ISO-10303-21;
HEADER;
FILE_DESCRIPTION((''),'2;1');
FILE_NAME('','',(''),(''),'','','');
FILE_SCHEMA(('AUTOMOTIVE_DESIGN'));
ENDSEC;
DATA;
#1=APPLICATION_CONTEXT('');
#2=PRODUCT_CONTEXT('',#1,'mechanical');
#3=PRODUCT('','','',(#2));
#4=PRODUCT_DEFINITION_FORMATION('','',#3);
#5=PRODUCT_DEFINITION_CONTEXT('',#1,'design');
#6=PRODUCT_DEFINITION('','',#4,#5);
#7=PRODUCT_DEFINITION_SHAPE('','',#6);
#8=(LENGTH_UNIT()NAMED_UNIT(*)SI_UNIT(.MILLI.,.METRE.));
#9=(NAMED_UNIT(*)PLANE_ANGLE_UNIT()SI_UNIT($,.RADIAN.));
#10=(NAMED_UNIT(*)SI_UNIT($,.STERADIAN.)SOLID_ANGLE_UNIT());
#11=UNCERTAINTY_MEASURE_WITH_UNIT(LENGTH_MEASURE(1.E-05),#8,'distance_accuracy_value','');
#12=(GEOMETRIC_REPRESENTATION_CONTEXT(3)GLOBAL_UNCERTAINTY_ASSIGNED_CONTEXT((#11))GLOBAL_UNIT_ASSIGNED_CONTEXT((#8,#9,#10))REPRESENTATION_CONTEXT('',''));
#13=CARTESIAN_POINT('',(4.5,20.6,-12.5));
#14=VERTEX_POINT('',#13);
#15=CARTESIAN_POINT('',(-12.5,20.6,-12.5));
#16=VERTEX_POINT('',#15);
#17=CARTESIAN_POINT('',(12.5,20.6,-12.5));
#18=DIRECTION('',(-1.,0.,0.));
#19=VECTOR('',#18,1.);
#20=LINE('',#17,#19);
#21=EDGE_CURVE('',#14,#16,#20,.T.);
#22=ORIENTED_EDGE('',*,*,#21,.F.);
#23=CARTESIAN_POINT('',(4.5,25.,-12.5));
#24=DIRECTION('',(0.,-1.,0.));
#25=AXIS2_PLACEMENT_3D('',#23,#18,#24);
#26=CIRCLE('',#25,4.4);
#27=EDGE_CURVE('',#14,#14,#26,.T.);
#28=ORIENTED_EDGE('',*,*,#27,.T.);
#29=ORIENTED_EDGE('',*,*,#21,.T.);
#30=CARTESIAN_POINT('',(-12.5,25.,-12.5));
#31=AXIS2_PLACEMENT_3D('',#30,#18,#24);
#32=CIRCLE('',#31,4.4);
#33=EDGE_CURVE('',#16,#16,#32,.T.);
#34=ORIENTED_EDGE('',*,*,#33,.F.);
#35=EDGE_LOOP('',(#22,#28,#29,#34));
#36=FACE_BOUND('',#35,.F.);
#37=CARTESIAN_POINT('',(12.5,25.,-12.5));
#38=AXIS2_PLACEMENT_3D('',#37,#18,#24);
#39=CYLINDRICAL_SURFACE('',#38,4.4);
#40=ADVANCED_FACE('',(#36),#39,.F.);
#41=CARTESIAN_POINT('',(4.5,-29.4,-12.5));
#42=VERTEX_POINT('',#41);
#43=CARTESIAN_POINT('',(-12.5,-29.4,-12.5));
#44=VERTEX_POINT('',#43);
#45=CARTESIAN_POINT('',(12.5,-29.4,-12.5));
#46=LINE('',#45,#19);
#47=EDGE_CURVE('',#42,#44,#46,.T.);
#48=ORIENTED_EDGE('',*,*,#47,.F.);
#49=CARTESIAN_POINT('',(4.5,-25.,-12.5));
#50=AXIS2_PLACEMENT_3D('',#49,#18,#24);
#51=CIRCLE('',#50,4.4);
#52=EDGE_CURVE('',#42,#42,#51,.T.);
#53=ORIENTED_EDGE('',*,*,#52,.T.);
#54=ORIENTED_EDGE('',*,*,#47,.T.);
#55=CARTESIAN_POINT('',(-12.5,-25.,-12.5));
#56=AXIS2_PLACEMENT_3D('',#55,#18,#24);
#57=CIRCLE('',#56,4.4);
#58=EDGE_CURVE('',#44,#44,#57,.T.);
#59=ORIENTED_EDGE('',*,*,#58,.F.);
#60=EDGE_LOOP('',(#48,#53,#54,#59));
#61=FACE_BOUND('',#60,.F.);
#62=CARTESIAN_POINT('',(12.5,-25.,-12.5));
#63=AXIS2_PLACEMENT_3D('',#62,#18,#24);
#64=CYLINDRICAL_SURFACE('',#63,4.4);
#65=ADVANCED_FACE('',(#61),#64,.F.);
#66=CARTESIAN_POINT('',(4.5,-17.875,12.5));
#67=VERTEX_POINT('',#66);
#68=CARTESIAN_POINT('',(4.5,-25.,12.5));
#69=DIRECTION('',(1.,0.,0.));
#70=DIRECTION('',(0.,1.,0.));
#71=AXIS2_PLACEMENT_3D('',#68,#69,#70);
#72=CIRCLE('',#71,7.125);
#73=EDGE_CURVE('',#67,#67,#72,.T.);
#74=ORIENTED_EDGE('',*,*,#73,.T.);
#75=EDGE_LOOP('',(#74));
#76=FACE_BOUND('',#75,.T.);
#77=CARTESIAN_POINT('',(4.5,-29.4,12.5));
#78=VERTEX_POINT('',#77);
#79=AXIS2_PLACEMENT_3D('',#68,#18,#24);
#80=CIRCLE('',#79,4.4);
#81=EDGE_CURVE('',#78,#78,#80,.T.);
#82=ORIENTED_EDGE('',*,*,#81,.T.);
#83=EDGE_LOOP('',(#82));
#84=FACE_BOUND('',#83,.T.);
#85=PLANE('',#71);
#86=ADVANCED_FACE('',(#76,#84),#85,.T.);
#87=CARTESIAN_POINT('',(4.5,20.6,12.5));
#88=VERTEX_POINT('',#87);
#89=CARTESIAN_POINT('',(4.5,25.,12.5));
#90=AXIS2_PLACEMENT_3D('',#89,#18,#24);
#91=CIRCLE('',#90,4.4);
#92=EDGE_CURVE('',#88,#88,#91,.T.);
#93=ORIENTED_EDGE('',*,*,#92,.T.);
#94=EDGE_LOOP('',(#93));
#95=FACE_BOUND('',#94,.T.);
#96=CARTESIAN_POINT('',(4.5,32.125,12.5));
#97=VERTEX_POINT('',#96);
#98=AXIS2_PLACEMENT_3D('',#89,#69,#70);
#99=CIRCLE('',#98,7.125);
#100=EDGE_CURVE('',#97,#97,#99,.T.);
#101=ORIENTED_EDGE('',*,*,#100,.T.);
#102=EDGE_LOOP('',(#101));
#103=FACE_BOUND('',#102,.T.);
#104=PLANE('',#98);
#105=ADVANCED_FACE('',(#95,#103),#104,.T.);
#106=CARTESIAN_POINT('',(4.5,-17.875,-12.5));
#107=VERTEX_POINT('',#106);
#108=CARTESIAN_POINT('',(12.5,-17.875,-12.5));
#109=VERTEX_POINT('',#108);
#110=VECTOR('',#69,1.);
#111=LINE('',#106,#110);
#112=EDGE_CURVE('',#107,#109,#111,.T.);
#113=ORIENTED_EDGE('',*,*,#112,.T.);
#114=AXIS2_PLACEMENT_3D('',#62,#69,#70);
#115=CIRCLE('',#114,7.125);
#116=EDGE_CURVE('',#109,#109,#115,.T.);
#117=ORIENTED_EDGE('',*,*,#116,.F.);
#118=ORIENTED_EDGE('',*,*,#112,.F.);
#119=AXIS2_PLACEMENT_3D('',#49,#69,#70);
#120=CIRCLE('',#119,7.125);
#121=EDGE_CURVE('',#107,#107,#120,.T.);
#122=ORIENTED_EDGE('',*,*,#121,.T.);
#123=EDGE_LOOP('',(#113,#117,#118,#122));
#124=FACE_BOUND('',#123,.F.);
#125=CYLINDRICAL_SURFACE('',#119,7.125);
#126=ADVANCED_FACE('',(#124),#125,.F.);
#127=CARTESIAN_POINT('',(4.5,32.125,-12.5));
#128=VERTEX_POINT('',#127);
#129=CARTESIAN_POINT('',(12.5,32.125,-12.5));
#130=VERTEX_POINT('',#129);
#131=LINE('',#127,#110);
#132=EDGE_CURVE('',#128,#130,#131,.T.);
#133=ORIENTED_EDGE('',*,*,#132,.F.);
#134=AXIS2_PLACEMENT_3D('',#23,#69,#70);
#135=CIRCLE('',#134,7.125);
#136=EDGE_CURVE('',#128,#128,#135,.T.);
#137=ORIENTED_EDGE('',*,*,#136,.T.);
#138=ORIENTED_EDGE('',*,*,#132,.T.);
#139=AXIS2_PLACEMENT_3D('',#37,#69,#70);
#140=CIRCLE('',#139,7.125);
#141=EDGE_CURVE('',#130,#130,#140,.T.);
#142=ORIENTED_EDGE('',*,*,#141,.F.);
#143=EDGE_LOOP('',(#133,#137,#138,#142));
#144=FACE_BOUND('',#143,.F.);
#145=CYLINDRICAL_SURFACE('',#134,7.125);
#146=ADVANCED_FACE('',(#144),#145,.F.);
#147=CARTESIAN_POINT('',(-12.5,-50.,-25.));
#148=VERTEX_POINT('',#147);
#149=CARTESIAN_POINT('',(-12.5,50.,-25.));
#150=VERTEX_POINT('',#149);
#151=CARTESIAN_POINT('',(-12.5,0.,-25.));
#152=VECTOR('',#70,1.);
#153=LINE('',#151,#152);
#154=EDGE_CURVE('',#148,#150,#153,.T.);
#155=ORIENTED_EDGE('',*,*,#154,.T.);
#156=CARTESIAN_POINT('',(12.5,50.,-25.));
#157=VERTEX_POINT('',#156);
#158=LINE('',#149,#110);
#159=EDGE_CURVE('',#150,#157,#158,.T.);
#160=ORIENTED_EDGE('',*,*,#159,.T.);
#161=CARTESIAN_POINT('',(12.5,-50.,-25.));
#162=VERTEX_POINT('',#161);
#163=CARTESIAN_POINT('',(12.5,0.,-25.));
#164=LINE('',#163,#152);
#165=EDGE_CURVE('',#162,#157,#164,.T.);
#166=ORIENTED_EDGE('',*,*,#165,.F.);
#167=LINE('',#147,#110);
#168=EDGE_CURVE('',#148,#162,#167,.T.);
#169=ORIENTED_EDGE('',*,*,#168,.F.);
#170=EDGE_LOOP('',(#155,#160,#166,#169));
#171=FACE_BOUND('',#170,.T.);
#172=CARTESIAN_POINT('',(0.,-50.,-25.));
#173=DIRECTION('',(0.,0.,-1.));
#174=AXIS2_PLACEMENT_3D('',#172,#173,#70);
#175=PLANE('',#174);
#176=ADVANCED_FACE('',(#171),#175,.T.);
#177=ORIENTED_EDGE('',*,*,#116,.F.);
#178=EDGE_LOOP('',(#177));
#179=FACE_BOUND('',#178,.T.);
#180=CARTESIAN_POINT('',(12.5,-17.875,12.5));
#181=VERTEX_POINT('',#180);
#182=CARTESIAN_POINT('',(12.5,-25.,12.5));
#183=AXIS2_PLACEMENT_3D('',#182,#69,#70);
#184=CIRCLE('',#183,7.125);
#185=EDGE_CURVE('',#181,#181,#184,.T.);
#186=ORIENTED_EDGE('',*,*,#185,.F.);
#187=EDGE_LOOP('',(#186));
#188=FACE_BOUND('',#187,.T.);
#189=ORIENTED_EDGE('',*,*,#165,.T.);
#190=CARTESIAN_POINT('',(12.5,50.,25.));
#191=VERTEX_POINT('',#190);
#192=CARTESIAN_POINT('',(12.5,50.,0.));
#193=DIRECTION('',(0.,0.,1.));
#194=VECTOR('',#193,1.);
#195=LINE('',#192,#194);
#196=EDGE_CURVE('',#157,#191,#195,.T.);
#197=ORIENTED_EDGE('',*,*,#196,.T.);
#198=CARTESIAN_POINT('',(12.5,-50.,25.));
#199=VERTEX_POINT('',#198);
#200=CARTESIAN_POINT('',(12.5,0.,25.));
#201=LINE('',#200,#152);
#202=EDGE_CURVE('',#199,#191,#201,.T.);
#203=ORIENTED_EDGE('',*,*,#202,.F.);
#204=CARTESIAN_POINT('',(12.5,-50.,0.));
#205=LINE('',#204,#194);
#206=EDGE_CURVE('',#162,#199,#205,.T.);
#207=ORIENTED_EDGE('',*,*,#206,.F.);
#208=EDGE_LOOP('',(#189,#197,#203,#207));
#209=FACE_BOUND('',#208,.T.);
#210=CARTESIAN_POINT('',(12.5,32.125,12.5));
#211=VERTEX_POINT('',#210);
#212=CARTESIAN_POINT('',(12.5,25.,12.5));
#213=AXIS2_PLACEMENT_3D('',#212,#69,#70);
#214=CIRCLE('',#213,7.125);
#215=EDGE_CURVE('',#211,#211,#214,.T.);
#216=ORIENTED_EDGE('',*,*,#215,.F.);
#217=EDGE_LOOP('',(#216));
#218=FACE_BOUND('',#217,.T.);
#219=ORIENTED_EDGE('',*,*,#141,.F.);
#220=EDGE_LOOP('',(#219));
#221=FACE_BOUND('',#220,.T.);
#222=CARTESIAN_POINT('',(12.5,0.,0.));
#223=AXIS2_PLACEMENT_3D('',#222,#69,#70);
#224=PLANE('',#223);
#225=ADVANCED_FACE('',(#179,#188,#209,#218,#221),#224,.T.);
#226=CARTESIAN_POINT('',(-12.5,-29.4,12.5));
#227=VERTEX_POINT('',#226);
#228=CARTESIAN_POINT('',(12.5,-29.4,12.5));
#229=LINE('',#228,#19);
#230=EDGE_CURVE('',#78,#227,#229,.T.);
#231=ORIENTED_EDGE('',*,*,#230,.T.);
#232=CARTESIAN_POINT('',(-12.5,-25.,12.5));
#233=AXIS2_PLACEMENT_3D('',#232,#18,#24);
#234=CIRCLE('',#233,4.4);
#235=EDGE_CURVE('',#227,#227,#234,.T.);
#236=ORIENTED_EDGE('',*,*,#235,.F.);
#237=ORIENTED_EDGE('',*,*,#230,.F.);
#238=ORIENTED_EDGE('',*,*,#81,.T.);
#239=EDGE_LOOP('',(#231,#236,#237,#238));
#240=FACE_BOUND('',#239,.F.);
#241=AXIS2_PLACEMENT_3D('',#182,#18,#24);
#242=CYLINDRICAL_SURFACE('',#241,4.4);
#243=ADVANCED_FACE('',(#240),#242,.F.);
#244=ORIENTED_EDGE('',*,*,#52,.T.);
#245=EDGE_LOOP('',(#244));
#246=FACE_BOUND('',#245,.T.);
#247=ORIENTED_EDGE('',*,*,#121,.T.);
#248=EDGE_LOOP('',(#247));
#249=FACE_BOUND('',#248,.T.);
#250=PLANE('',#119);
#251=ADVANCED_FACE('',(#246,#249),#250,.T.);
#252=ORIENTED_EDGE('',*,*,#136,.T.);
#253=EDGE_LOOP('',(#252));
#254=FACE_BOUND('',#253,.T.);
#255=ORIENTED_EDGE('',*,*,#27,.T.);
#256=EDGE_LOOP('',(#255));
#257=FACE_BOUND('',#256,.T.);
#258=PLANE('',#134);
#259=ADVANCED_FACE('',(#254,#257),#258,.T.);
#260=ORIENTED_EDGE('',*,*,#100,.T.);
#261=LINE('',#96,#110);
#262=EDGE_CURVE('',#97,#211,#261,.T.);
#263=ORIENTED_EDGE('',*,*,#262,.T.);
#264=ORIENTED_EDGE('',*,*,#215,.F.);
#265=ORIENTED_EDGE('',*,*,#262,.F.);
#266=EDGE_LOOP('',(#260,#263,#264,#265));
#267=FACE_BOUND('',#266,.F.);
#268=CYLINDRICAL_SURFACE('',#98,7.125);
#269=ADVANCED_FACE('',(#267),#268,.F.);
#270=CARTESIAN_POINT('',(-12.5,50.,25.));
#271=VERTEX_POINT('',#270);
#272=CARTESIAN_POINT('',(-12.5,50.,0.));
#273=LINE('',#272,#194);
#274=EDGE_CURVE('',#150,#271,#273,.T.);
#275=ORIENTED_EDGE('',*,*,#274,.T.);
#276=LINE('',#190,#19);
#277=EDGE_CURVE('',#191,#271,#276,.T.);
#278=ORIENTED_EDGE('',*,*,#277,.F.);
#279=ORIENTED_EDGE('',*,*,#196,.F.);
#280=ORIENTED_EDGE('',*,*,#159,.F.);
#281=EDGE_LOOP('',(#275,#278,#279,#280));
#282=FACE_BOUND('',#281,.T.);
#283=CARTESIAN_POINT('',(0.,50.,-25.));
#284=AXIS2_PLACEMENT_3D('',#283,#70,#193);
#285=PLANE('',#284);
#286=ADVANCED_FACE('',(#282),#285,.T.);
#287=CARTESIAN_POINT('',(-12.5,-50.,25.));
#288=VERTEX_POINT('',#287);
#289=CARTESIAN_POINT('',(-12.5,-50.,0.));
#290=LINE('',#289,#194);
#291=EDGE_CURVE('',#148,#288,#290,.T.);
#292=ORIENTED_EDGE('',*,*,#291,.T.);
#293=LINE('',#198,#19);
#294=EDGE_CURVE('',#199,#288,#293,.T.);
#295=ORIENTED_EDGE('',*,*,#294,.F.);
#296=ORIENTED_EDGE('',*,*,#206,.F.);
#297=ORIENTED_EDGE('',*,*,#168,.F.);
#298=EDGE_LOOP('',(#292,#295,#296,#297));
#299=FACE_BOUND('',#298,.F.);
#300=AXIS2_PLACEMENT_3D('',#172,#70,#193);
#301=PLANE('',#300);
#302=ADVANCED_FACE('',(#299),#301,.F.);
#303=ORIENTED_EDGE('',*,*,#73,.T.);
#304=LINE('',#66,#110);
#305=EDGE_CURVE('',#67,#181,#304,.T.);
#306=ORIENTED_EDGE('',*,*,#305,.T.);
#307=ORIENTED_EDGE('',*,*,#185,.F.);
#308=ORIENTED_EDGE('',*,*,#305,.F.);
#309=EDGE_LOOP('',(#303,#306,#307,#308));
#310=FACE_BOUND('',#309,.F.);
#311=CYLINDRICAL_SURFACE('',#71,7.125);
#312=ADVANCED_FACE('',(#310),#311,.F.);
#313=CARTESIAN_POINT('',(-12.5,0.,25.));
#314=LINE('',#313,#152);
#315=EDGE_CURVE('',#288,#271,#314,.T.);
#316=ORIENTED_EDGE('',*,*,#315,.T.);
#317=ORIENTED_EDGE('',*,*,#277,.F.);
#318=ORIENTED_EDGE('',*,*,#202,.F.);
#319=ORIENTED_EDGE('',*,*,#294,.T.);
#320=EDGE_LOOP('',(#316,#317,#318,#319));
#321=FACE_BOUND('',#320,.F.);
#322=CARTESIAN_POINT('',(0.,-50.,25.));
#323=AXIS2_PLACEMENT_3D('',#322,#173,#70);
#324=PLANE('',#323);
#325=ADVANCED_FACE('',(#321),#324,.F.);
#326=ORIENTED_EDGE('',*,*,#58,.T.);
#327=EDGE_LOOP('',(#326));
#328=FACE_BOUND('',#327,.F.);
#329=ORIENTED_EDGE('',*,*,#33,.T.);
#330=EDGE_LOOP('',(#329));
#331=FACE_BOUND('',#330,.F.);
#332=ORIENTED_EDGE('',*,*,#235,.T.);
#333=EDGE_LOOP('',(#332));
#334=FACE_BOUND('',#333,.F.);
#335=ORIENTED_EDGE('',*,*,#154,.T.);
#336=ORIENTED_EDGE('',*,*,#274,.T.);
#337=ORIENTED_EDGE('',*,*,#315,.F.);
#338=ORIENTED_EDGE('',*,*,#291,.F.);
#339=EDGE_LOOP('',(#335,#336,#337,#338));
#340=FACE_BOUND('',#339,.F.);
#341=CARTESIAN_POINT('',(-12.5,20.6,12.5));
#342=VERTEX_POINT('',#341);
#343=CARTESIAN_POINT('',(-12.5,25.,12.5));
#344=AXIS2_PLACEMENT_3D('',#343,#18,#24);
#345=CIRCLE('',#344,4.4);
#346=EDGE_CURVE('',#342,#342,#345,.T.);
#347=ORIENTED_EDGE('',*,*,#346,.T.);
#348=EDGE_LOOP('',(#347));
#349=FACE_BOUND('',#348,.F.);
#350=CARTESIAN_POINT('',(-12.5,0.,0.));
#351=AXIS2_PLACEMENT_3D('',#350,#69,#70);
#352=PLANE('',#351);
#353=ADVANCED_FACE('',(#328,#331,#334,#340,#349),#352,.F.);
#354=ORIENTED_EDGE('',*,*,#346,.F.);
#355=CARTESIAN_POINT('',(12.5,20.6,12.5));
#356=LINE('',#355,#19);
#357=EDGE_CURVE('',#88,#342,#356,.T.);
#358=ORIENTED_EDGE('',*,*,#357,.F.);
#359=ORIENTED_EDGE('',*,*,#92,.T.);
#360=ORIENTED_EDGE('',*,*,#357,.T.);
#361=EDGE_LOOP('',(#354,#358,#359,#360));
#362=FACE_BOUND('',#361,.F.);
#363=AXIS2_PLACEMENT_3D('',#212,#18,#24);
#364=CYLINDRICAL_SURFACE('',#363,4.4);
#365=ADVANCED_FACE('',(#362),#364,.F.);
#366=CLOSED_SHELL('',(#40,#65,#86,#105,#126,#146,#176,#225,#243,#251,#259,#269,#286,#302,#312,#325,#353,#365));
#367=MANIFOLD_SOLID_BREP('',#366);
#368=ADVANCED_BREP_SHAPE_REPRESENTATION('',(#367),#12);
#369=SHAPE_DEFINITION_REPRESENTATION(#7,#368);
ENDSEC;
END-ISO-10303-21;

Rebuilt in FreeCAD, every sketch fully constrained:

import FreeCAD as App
import Part
import Sketcher

doc = App.newDocument("Part")
params = doc.addObject("Spreadsheet::Sheet", "Params")
for row, (alias, value) in enumerate([
    ("sketch1_width", "100 mm"),
    ("sketch1_height", "50 mm"),
    ("pad1_length", "25 mm"),
    ("sketch2_diameter", "8.8 mm"),
    ("hole_diameter", "8.8 mm"),
    ("hole_cbore_diameter", "14.25 mm"),
    ("hole_cbore_depth", "8 mm"),
], start=1):
    params.set(f"A{row}", alias)
    params.set(f"B{row}", "=" + value)
    params.setAlias(f"B{row}", alias)

body = doc.addObject("PartDesign::Body", "Body")

# Sketch on YZ plane
sketch1 = body.newObject("Sketcher::SketchObject", "Sketch")
sketch1.AttachmentSupport = (doc.getObject("YZ_Plane"), [""])
sketch1.MapMode = "FlatFace"
sketch1.addGeometry(Part.LineSegment(App.Vector(-50, 25, 0), App.Vector(-50, -25, 0)), False)
sketch1.addGeometry(Part.LineSegment(App.Vector(-50, -25, 0), App.Vector(50, -25, 0)), False)
sketch1.addGeometry(Part.LineSegment(App.Vector(50, -25, 0), App.Vector(50, 25, 0)), False)
sketch1.addGeometry(Part.LineSegment(App.Vector(50, 25, 0), App.Vector(-50, 25, 0)), False)
sketch1.addConstraint(Sketcher.Constraint("Coincident", 0, 2, 1, 1))
sketch1.addConstraint(Sketcher.Constraint("Coincident", 1, 2, 2, 1))
sketch1.addConstraint(Sketcher.Constraint("Coincident", 2, 2, 3, 1))
sketch1.addConstraint(Sketcher.Constraint("Coincident", 3, 2, 0, 1))
sketch1.addConstraint(Sketcher.Constraint("Vertical", 0))
sketch1.addConstraint(Sketcher.Constraint("Horizontal", 1))
sketch1.addConstraint(Sketcher.Constraint("Vertical", 2))
sketch1.addConstraint(Sketcher.Constraint("Horizontal", 3))
sketch1.addConstraint(Sketcher.Constraint("Symmetric", 0, 2, 2, 2, -1, 1))
sketch1.addConstraint(Sketcher.Constraint("DistanceX", 1, 1, 1, 2, 100.0))
sketch1.addConstraint(Sketcher.Constraint("DistanceY", 0, 2, 0, 1, 50.0))
sketch1.setExpression("Constraints[9]", "Params.sketch1_width")
sketch1.setExpression("Constraints[10]", "Params.sketch1_height")
pad1 = body.newObject("PartDesign::Pad", "Pad")
pad1.Profile = sketch1
pad1.setExpression("Length", "Params.pad1_length")
pad1.Midplane = True

# Sketch on YZ plane
sketch2 = body.newObject("Sketcher::SketchObject", "Sketch001")
sketch2.AttachmentSupport = (doc.getObject("YZ_Plane"), [""])
sketch2.MapMode = "FlatFace"
sketch2.AttachmentOffset = App.Placement(App.Vector(0, 0, 12.5), App.Rotation())
sketch2.addGeometry(Part.Circle(App.Vector(-25, 12.5, 0), App.Vector(0, 0, 1), 4.4), False)
sketch2.addGeometry(Part.Circle(App.Vector(-25, -12.5, 0), App.Vector(0, 0, 1), 4.4), False)
sketch2.addGeometry(Part.Circle(App.Vector(25, -12.5, 0), App.Vector(0, 0, 1), 4.4), False)
sketch2.addGeometry(Part.Circle(App.Vector(25, 12.5, 0), App.Vector(0, 0, 1), 4.4), False)
sketch2.addConstraint(Sketcher.Constraint("Equal", 0, 1))
sketch2.addConstraint(Sketcher.Constraint("Equal", 1, 2))
sketch2.addConstraint(Sketcher.Constraint("Equal", 2, 3))
sketch2.addConstraint(Sketcher.Constraint("Symmetric", 0, 3, 2, 3, -1, 1))
sketch2.addConstraint(Sketcher.Constraint("Symmetric", 1, 3, 3, 3, -1, 1))
sketch2.addConstraint(Sketcher.Constraint("Symmetric", 1, 3, 2, 3, -2))
sketch2.addConstraint(Sketcher.Constraint("Diameter", 0, 8.8))
sketch2.addConstraint(Sketcher.Constraint("DistanceX", 0, 3, -1, 1, 25.0))
sketch2.addConstraint(Sketcher.Constraint("DistanceY", 1, 3, 0, 3, 25.0))
sketch2.setExpression("Constraints[6]", "Params.sketch2_diameter")
doc.recompute()
hole = body.newObject("PartDesign::Hole", "Hole")
hole.Profile = sketch2
hole.ThreadType = "None"
hole.setExpression("Diameter", "Params.hole_diameter")
hole.DepthType = "ThroughAll"
hole.HoleCutType = "Counterbore"
hole.setExpression("HoleCutDiameter", "Params.hole_cbore_diameter")
hole.setExpression("HoleCutDepth", "Params.hole_cbore_depth")

doc.recompute()
